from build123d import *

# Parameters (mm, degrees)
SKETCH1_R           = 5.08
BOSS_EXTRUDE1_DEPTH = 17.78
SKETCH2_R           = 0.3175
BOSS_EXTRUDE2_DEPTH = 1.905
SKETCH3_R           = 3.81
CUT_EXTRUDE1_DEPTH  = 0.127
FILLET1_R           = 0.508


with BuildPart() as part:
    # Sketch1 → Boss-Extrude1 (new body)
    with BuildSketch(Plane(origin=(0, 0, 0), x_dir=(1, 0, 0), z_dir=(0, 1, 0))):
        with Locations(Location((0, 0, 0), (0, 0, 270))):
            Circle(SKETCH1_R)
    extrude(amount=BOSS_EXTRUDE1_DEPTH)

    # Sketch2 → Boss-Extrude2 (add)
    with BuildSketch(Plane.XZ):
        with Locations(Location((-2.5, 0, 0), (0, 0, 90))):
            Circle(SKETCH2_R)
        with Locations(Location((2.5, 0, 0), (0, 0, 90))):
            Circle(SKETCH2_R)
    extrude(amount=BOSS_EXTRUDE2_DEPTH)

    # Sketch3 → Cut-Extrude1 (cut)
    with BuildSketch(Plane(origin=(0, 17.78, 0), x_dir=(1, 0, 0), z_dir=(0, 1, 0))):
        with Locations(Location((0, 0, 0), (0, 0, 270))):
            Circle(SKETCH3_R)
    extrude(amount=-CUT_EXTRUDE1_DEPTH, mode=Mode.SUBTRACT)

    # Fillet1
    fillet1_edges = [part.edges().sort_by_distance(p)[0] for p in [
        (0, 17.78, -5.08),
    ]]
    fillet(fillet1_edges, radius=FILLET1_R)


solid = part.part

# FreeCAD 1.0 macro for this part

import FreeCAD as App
import Part
import Sketcher
from FreeCAD import Vector
Q = App.Units.Quantity


def edges_at(feature, points):
    """Names of the edges that pass closest to the given points."""
    edges = feature.Shape.Edges
    near = lambda p: min(range(len(edges)), key=lambda i: edges[i].distToShape(Part.Vertex(*p))[0])
    return sorted({f"Edge{near(p) + 1}" for p in points})

doc = App.newDocument("Part")
body = doc.addObject("PartDesign::Body", "Body")

sketch1 = body.newObject("Sketcher::SketchObject", "Sketch")
sketch1.AttachmentSupport = (doc.getObject("XZ_Plane"), [""])
sketch1.MapMode = "FlatFace"
sketch1.addGeometry(Part.Circle(Vector(0, 0, 0), Vector(0, 0, 1), 5), False)
sketch1.addConstraint([
    Sketcher.Constraint("Coincident", 0, 3, -1, 1),
    Sketcher.Constraint("Diameter", 0, Q("0.4 in")),
])
pad1 = body.newObject("PartDesign::Pad", "Pad")
pad1.Profile = sketch1
pad1.Length = Q("0.7 in")
pad1.Reversed = True

sketch2 = body.newObject("Sketcher::SketchObject", "Sketch001")
sketch2.AttachmentSupport = (doc.getObject("XZ_Plane"), [""])
sketch2.MapMode = "FlatFace"
sketch2.addGeometry([
    Part.Circle(Vector(-2.5, 0, 0), Vector(0, 0, 1), 0.32),
    Part.Circle(Vector(2.5, 0, 0), Vector(0, 0, 1), 0.32),
], False)
sketch2.addConstraint([
    Sketcher.Constraint("Equal", 0, 1),
    Sketcher.Constraint("Symmetric", 0, 3, 1, 3, -1, 1),
    Sketcher.Constraint("PointOnObject", 0, 3, -1),
    Sketcher.Constraint("Diameter", 0, Q("0.025 in")),
    Sketcher.Constraint("DistanceX", 0, 3, -1, 1, 2.5),
])
pad2 = body.newObject("PartDesign::Pad", "Pad001")
pad2.Profile = sketch2
pad2.Length = Q("0.075 in")

sketch3 = body.newObject("Sketcher::SketchObject", "Sketch002")
sketch3.AttachmentSupport = (doc.getObject("XZ_Plane"), [""])
sketch3.MapMode = "FlatFace"
sketch3.AttachmentOffset = App.Placement(Vector(0, 0, -0.7 * 25.4), App.Rotation())
sketch3.addGeometry(Part.Circle(Vector(0, 0, 0), Vector(0, 0, 1), 3.8), False)
sketch3.addConstraint([
    Sketcher.Constraint("Coincident", 0, 3, -1, 1),
    Sketcher.Constraint("Diameter", 0, Q("0.3 in")),
])
pocket1 = body.newObject("PartDesign::Pocket", "Pocket")
pocket1.Profile = sketch3
pocket1.Length = Q("0.005 in")
pocket1.Reversed = True
doc.recompute()

fillet = body.newObject("PartDesign::Fillet", "Fillet")
fillet.Base = (pocket1, edges_at(pocket1, [(0, 17.78, -5.08)]))
fillet.Radius = Q("0.02 in")

doc.recompute()
